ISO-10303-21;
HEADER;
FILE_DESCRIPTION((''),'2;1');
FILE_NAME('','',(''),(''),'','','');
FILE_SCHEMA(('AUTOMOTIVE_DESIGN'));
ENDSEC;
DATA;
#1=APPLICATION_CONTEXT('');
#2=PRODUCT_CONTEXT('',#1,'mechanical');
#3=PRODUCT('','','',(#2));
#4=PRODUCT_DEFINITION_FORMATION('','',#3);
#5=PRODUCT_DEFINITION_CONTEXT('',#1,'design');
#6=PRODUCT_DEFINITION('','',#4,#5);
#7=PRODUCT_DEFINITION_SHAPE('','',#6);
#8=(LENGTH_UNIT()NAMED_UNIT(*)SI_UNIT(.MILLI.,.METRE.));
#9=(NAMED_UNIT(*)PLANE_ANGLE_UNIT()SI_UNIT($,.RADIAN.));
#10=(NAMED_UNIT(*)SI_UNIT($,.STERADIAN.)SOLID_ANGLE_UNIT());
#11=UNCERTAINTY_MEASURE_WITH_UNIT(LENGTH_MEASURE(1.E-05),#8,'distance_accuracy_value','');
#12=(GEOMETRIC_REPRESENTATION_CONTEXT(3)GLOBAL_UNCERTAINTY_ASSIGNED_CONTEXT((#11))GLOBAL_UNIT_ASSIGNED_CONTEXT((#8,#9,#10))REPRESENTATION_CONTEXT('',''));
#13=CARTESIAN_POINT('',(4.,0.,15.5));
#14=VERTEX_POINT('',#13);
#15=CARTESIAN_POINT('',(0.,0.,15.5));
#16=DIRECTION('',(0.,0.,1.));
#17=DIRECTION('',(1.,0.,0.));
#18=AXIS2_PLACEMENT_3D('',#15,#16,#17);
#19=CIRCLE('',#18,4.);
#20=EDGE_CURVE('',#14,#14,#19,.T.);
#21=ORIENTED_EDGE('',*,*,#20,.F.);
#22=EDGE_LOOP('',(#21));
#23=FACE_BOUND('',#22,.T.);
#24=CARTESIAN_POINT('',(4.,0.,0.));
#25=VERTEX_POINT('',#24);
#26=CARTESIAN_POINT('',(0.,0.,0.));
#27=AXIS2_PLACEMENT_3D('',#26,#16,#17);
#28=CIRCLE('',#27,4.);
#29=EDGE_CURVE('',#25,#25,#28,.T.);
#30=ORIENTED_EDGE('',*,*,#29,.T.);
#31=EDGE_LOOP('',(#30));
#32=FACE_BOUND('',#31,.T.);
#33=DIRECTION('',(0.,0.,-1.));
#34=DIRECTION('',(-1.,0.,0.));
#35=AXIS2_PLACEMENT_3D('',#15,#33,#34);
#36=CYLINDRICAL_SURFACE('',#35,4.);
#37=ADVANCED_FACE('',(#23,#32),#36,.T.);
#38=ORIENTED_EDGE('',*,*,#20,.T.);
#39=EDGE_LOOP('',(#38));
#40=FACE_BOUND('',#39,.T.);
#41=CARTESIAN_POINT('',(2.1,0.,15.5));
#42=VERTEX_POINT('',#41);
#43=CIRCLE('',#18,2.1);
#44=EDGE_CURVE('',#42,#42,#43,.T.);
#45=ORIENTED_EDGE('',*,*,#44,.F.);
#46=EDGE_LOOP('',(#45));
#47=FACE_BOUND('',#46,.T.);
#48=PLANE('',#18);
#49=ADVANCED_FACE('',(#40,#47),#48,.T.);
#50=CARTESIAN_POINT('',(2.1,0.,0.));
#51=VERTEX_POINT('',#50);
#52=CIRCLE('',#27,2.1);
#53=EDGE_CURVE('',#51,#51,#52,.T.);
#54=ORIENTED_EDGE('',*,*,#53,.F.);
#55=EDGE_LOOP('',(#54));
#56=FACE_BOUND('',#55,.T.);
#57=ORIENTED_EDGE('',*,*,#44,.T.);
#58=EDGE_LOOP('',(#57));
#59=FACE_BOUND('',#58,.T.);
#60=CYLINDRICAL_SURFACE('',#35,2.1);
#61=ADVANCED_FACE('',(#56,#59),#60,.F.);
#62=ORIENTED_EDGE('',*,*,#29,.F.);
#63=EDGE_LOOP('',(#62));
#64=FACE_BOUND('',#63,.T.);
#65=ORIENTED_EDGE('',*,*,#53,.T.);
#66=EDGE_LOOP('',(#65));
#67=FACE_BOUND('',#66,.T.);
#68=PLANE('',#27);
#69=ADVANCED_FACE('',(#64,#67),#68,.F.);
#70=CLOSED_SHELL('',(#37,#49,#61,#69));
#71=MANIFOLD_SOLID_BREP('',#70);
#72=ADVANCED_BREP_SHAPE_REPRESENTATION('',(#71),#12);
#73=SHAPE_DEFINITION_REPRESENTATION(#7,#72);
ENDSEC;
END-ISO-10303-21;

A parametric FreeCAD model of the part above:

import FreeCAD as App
import Part
import Sketcher
from FreeCAD import Vector

doc = App.newDocument("Part")
body = doc.addObject("PartDesign::Body", "Body")

# Sketch on XY plane
sketch1 = doc.addObject("Sketcher::SketchObject", "Sketch")
body.addObject(sketch1)
sketch1.AttachmentSupport = (doc.XY_Plane, [""])
sketch1.MapMode = "FlatFace"
sketch1.addGeometry([
    Part.Circle(Vector(0, 0, 0), Vector(0, 0, 1), 4),
    Part.Circle(Vector(0, 0, 0), Vector(0, 0, 1), 2.1),
], False)
sketch1.addConstraint([
    Sketcher.Constraint("Coincident", 0, 3, -1, 1),
    Sketcher.Constraint("Coincident", 1, 3, -1, 1),
    Sketcher.Constraint("Diameter", 0, 8.0),
    Sketcher.Constraint("Diameter", 1, 4.2),
])
pad1 = doc.addObject("PartDesign::Pad", "Pad")
body.addObject(pad1)
pad1.Profile = sketch1
pad1.Length = 15.5

doc.recompute()
